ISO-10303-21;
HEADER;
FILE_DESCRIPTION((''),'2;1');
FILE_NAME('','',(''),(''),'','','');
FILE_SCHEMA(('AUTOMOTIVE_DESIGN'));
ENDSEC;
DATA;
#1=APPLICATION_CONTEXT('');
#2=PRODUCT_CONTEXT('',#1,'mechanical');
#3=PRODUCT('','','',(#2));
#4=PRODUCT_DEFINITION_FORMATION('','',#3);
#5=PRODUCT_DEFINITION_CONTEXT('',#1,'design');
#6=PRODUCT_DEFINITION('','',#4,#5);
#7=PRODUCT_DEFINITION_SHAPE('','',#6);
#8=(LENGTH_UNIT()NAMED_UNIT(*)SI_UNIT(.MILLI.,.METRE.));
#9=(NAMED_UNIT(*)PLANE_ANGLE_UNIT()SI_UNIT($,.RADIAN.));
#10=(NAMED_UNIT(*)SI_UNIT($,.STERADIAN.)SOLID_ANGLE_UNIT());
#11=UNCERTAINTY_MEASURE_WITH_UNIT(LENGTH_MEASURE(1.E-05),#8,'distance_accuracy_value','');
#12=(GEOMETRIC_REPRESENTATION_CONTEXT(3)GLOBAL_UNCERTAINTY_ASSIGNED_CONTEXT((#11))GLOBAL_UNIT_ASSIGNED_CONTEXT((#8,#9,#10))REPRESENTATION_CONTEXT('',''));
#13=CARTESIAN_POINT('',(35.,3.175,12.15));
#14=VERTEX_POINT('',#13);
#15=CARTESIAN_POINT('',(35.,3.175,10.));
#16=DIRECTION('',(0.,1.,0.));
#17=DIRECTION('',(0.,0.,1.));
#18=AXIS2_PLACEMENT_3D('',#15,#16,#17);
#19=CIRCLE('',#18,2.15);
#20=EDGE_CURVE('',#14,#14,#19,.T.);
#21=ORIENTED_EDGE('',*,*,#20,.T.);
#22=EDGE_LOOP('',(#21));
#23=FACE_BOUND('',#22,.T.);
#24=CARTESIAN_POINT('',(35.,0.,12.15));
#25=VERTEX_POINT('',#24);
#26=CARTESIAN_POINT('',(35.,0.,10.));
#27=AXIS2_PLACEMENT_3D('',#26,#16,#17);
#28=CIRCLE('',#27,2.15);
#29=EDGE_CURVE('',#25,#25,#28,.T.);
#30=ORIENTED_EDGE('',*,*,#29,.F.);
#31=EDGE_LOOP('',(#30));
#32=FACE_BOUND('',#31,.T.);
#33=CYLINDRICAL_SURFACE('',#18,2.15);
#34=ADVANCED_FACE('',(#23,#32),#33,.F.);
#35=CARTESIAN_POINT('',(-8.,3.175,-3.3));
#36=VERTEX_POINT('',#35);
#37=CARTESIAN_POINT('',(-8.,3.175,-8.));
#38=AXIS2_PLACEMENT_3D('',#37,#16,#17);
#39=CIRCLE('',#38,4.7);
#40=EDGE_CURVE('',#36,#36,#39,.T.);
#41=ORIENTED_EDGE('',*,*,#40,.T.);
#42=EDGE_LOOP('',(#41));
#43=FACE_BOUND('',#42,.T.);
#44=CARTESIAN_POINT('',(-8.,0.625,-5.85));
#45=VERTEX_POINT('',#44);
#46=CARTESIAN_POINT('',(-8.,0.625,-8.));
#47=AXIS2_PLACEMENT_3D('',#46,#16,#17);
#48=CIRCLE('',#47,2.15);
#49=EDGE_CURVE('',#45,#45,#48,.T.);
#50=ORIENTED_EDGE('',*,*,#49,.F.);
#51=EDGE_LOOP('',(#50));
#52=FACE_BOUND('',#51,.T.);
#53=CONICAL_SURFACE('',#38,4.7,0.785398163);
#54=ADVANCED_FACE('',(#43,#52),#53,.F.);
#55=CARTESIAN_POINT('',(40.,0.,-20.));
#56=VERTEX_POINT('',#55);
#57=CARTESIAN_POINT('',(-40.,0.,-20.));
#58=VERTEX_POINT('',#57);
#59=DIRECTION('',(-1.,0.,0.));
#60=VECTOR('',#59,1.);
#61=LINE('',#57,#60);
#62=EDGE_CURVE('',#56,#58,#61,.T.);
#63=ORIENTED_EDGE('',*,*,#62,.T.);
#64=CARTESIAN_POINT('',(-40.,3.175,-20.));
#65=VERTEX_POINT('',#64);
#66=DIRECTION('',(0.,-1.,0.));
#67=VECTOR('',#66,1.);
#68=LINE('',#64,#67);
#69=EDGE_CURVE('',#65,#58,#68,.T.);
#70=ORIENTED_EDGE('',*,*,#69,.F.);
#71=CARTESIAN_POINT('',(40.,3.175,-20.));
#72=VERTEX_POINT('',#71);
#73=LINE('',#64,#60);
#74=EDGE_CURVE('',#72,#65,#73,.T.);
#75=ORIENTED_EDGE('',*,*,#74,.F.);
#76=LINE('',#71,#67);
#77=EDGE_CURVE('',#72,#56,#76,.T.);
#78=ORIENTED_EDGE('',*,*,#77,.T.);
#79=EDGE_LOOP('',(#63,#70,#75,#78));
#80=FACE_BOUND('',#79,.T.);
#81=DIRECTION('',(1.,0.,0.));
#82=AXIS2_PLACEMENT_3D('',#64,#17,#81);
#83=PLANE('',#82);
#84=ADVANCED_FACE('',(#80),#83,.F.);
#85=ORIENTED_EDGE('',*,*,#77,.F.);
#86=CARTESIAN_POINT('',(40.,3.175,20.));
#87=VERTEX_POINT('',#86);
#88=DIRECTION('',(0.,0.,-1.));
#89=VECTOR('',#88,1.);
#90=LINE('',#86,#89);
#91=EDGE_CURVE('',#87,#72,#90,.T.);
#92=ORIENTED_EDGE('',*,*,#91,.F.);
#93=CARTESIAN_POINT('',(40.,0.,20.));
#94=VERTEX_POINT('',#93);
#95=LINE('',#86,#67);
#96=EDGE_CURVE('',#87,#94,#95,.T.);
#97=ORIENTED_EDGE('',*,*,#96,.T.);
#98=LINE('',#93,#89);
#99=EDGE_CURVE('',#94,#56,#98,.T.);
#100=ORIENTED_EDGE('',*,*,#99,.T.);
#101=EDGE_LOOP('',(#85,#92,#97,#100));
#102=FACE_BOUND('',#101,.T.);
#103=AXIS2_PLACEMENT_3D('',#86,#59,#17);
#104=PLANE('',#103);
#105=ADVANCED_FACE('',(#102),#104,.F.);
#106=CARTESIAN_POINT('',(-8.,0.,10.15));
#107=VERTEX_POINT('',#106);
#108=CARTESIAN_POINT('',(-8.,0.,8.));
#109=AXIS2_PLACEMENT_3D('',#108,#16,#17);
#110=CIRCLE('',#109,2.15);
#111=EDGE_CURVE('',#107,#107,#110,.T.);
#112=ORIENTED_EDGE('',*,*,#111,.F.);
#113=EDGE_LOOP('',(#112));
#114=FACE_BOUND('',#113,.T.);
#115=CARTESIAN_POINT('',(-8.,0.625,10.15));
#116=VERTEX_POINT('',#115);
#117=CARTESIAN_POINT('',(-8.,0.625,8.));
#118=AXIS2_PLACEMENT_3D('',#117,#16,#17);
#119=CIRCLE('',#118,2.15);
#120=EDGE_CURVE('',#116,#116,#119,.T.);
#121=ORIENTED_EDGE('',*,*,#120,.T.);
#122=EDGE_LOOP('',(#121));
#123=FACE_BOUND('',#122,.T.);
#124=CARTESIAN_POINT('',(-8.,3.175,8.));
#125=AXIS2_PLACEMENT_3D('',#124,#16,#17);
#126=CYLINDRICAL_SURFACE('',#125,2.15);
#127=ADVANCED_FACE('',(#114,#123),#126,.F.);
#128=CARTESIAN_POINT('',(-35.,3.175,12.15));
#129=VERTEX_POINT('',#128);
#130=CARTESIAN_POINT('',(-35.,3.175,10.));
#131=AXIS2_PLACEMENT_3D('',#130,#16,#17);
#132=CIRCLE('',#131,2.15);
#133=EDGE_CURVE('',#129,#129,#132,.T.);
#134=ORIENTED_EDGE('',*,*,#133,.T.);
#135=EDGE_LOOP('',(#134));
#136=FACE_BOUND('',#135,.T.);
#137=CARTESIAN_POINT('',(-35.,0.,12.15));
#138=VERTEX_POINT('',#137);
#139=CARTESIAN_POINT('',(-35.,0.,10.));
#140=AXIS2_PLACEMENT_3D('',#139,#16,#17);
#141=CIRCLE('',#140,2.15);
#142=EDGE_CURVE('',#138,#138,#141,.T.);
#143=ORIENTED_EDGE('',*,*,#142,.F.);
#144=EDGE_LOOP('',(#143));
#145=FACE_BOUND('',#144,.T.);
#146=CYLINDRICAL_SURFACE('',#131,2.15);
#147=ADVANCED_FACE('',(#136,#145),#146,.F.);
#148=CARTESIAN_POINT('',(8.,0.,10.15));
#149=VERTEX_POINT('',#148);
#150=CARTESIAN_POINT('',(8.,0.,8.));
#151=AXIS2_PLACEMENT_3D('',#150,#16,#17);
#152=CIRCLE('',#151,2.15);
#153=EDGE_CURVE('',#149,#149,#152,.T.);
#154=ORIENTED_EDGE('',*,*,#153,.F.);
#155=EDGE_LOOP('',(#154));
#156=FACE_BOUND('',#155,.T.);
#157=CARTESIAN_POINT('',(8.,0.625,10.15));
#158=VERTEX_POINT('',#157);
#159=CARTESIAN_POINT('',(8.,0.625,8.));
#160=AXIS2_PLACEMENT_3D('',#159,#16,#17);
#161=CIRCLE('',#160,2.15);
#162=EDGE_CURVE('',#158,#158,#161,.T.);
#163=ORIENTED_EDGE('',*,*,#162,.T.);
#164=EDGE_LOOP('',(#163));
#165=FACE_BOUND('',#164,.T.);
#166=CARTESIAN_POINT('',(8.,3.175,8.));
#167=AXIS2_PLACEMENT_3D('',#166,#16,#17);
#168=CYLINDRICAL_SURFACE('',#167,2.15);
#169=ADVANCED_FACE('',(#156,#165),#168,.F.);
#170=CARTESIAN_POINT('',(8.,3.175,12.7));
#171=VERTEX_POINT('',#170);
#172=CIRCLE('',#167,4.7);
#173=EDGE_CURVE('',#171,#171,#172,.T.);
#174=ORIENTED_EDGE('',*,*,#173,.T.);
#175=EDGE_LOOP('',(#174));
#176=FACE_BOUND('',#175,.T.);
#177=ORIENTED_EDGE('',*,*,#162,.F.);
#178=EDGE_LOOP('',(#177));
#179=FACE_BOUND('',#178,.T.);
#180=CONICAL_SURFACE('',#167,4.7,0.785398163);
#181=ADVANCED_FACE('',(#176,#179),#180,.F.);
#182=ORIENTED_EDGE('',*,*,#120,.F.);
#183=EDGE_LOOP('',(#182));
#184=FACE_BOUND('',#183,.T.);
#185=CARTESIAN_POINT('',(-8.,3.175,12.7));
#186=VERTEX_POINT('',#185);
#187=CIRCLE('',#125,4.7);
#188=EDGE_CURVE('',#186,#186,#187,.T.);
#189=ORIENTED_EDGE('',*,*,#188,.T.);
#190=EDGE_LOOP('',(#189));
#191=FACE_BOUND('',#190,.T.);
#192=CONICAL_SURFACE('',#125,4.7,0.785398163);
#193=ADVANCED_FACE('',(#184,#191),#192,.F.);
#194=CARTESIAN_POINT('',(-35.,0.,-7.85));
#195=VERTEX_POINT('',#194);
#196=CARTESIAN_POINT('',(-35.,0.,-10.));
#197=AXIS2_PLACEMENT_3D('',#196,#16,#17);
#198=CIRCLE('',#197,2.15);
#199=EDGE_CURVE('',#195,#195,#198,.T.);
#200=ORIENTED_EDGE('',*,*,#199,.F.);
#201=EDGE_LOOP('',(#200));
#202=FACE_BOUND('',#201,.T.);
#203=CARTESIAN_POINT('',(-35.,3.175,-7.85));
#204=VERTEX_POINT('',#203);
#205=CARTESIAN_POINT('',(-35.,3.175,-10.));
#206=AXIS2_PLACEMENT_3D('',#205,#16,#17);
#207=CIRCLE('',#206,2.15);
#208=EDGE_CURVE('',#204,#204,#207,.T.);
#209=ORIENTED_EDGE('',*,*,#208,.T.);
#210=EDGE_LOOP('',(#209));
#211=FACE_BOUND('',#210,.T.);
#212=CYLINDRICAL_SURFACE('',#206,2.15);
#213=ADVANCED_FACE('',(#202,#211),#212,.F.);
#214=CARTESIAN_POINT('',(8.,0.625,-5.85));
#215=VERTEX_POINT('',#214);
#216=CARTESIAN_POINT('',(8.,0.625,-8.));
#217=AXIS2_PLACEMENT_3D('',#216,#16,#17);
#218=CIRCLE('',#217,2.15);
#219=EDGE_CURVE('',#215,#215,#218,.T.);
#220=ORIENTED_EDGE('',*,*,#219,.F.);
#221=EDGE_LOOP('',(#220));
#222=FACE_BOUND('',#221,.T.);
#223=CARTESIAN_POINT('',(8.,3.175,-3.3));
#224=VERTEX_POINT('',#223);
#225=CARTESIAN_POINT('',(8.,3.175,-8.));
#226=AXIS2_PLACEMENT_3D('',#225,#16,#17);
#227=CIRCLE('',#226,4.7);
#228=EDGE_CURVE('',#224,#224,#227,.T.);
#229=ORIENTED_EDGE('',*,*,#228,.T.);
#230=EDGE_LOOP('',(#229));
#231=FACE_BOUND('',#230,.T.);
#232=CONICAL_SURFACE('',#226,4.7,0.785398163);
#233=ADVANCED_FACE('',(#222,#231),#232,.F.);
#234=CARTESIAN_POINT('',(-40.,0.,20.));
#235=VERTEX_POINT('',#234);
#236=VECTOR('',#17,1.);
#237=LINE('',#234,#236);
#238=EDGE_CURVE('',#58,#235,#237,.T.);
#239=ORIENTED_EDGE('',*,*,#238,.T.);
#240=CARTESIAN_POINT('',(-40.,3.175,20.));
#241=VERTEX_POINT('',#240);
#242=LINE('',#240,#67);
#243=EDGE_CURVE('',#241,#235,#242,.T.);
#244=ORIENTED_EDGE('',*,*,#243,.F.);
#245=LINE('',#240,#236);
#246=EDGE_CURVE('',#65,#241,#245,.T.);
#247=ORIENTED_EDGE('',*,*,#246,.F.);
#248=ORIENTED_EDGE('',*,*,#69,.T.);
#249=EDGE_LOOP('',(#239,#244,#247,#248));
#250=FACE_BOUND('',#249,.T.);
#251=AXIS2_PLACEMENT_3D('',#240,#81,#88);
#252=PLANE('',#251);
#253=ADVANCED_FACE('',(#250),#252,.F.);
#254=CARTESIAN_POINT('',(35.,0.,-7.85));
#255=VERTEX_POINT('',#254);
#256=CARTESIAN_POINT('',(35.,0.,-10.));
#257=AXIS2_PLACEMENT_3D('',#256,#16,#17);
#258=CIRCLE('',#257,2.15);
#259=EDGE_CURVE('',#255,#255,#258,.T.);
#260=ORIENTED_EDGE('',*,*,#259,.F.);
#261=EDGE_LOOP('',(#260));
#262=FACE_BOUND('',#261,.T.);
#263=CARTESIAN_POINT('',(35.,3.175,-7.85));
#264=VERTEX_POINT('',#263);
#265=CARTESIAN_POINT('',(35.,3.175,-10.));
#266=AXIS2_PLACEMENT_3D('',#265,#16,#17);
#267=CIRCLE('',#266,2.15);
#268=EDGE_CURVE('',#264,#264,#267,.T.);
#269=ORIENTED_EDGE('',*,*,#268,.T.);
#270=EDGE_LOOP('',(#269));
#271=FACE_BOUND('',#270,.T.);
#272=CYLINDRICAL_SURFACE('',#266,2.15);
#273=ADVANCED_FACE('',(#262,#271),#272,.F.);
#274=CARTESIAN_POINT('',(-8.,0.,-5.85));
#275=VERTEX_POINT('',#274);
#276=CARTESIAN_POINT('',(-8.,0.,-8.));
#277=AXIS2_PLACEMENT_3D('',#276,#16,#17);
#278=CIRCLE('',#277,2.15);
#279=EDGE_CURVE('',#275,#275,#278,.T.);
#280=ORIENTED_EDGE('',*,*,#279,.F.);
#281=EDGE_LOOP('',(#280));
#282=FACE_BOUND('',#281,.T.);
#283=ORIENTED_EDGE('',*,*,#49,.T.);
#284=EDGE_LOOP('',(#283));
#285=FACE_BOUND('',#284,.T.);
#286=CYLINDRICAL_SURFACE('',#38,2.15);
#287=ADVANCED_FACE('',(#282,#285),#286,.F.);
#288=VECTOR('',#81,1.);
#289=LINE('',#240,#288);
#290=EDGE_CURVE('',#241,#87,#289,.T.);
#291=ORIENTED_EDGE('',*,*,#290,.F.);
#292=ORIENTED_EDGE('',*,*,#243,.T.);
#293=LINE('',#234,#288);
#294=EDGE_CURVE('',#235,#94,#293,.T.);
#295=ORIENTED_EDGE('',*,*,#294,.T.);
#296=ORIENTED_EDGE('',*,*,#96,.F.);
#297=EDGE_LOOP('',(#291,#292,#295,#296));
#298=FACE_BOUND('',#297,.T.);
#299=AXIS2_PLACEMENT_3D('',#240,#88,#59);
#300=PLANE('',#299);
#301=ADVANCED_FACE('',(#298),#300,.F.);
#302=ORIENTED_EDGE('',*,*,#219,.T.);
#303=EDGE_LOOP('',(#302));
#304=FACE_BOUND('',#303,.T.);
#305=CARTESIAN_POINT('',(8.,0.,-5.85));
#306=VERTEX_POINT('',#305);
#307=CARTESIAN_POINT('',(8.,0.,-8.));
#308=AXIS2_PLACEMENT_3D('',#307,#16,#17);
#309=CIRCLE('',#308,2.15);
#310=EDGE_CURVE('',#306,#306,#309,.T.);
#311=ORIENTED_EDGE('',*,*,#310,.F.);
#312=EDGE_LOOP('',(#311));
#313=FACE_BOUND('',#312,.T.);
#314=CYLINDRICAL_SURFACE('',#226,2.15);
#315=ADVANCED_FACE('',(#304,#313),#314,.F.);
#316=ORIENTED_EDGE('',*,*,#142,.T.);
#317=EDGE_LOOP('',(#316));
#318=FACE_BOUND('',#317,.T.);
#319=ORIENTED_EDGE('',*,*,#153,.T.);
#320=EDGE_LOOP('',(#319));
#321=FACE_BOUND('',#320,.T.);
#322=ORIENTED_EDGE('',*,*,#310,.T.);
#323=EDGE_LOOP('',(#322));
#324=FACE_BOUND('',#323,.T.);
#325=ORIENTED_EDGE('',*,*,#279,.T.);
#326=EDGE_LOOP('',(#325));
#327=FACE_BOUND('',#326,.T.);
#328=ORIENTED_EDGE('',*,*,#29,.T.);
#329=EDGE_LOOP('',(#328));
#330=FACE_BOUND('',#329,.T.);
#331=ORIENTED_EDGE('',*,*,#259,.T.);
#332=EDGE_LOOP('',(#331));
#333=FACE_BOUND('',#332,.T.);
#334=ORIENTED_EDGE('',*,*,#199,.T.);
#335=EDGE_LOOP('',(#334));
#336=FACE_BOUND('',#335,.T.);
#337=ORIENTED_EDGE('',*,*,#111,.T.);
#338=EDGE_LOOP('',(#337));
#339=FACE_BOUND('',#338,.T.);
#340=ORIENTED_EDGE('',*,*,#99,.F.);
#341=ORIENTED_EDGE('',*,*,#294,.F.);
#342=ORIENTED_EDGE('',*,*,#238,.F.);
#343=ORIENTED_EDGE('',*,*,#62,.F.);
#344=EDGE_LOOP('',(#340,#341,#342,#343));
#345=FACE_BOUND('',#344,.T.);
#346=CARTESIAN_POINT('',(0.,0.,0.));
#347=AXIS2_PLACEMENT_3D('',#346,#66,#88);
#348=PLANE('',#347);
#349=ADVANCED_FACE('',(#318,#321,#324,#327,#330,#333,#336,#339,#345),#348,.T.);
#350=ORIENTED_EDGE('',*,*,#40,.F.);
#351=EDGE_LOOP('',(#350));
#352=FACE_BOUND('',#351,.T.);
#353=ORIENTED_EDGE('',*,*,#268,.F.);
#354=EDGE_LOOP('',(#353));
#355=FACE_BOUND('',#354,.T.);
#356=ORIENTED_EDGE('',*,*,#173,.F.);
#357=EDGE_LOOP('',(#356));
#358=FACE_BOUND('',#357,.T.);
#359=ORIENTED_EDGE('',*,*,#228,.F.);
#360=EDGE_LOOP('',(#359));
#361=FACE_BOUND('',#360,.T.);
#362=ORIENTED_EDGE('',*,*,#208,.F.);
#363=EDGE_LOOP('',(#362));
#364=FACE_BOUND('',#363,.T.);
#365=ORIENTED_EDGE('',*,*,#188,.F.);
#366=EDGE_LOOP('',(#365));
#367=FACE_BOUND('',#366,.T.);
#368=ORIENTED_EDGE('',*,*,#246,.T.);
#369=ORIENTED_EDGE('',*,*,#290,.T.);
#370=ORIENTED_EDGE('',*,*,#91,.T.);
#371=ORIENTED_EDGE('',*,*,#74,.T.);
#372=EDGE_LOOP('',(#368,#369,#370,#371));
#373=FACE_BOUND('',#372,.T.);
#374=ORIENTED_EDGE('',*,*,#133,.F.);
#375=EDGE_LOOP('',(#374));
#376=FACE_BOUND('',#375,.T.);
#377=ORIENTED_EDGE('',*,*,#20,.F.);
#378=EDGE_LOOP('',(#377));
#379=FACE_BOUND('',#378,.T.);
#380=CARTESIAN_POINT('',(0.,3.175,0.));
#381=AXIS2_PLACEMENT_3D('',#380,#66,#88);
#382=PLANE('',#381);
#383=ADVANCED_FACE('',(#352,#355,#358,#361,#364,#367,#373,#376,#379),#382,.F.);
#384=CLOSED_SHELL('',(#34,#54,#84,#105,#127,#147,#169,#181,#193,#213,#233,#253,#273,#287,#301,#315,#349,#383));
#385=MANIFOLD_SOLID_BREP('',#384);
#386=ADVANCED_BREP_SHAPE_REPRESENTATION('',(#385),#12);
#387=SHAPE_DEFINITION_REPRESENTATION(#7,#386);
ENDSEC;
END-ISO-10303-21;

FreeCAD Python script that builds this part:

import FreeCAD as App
import Part
import Sketcher
Q = App.Units.Quantity


def add_polygon(sketch, points):
    """Adds a closed chain of lines whose ends are joined by coincident constraints."""
    first, n = sketch.GeometryCount, len(points)
    for a, b in zip(points, points[1:] + points[:1]):
        sketch.addGeometry(Part.LineSegment(App.Vector(*a, 0), App.Vector(*b, 0)), False)
    for i in range(n):
        sketch.addConstraint(Sketcher.Constraint("Coincident", first + i, 2, first + (i + 1) % n, 1))

doc = App.newDocument("Part")
params = doc.addObject("Spreadsheet::Sheet", "Params")
for row, (alias, value) in enumerate([
    ("sketch1_width", "80 mm"),
    ("sketch1_height", "40 mm"),
    ("pad1_length", "3.175 mm"),
    ("sketch2_diameter", "4.3 mm"),
    ("hole_diameter", "4.3 mm"),
    ("sketch3_height", "4.7 mm"),
    ("sketch3_height2", "2.15 mm"),
    ("groove_angle", "360 deg"),
    ("linearpattern_pitch", "16 mm"),
    ("linearpattern2_pitch", "22.627417 mm"),
    ("linearpattern3_pitch", "16 mm"),
], start=1):
    params.set(f"A{row}", alias)
    params.set(f"B{row}", "=" + value)
    params.setAlias(f"B{row}", alias)

body = doc.addObject("PartDesign::Body", "Body")

# Sketch on XZ plane
sketch1 = body.newObject("Sketcher::SketchObject", "Sketch")
sketch1.AttachmentSupport = (doc.getObject("XZ_Plane"), [""])
sketch1.MapMode = "FlatFace"
add_polygon(sketch1, [(-40, -20), (-40, 20), (40, 20), (40, -20)])  # lines 0-3
sketch1.addConstraint([
    Sketcher.Constraint("Vertical", 0),
    Sketcher.Constraint("Horizontal", 1),
    Sketcher.Constraint("Vertical", 2),
    Sketcher.Constraint("Horizontal", 3),
    Sketcher.Constraint("Symmetric", 0, 2, 2, 2, -1, 1),
    Sketcher.Constraint("DistanceX", 1, 1, 1, 2, Q("80 mm")),
    Sketcher.Constraint("DistanceY", 0, 1, 0, 2, Q("40 mm")),
])
sketch1.setExpression("Constraints[9]", "Params.sketch1_width")
sketch1.setExpression("Constraints[10]", "Params.sketch1_height")
pad1 = body.newObject("PartDesign::Pad", "Pad")
pad1.Profile = sketch1
pad1.setExpression("Length", "Params.pad1_length")
pad1.Reversed = True

# Sketch on XZ plane
sketch2 = body.newObject("Sketcher::SketchObject", "Sketch001")
sketch2.AttachmentSupport = (doc.getObject("XZ_Plane"), [""])
sketch2.MapMode = "FlatFace"
sketch2.AttachmentOffset = App.Placement(App.Vector(0, 0, -3.175), App.Rotation())
sketch2.addGeometry([
    Part.Circle(App.Vector(-35, -10, 0), App.Vector(0, 0, 1), 2.1),
    Part.Circle(App.Vector(35, -10, 0), App.Vector(0, 0, 1), 2.1),
    Part.Circle(App.Vector(35, 10, 0), App.Vector(0, 0, 1), 2.1),
    Part.Circle(App.Vector(-35, 10, 0), App.Vector(0, 0, 1), 2.1),
], False)
sketch2.addConstraint([
    Sketcher.Constraint("Equal", 0, 1),
    Sketcher.Constraint("Equal", 1, 2),
    Sketcher.Constraint("Equal", 2, 3),
    Sketcher.Constraint("Symmetric", 0, 3, 2, 3, -1, 1),
    Sketcher.Constraint("Symmetric", 1, 3, 3, 3, -1, 1),
    Sketcher.Constraint("Symmetric", 0, 3, 1, 3, -2),
    Sketcher.Constraint("Diameter", 0, Q("4.3 mm")),
    Sketcher.Constraint("DistanceX", 0, 3, -1, 1, Q("35 mm")),
    Sketcher.Constraint("DistanceY", 0, 3, -1, 1, Q("10 mm")),
])
sketch2.setExpression("Constraints[6]", "Params.sketch2_diameter")
doc.recompute()
hole = body.newObject("PartDesign::Hole", "Hole")
hole.Profile = sketch2
hole.ThreadType = "None"
hole.setExpression("Diameter", "Params.hole_diameter")
hole.DepthType = "ThroughAll"
hole.Reversed = True

# Sketch on YZ plane
sketch3 = body.newObject("Sketcher::SketchObject", "Sketch002")
sketch3.AttachmentSupport = (doc.getObject("YZ_Plane"), [""])
sketch3.MapMode = "FlatFace"
sketch3.AttachmentOffset = App.Placement(App.Vector(0, 0, -8), App.Rotation())
add_polygon(sketch3, [(0, -8), (3.2, -8), (3.2, -3.3), (0.6, -5.8), (0, -5.8)])  # lines 0-4
sketch3.addGeometry(Part.LineSegment(App.Vector(3.2, -8, 0), App.Vector(0, -8, 0)), True)  # axis
sketch3.addConstraint([
    Sketcher.Constraint("Horizontal", 0),
    Sketcher.Constraint("Vertical", 1),
    Sketcher.Constraint("Horizontal", 3),
    Sketcher.Constraint("Vertical", 4),
    Sketcher.Constraint("Horizontal", 5),
    Sketcher.Constraint("Coincident", 5, 1, 0, 2),
    Sketcher.Constraint("PointOnObject", 3, 2, -2),
    Sketcher.Constraint("PointOnObject", 5, 2, -2),
    Sketcher.Constraint("Angle", 2, Q("-135 deg")),
    Sketcher.Constraint("DistanceY", 1, 1, 1, 2, Q("4.7 mm")),
    Sketcher.Constraint("DistanceY", 0, 2, -1, 1, Q("8 mm")),
    Sketcher.Constraint("DistanceY", 4, 2, 4, 1, Q("2.15 mm")),
    Sketcher.Constraint("DistanceX", 0, 1, 0, 2, Q("3.175 mm")),
])
sketch3.setExpression("Constraints[14]", "Params.sketch3_height")
sketch3.setExpression("Constraints[16]", "Params.sketch3_height2")
groove = body.newObject("PartDesign::Groove", "Groove")
groove.Profile = sketch3
groove.ReferenceAxis = (sketch3, ["Axis0"])
groove.setExpression("Angle", "Params.groove_angle")
doc.recompute()

linearpattern = body.newObject("PartDesign::LinearPattern", "LinearPattern")
linearpattern.Originals = [groove]
linearpattern.Direction = (doc.getObject("X_Axis"), [""])
linearpattern.Mode = "offset"
linearpattern.setExpression("Offset", "Params.linearpattern_pitch")
linearpattern.Occurrences = 2
body.Tip = linearpattern
doc.recompute()

datumline = body.newObject("PartDesign::Line", "DatumLine")
datumline.Placement = App.Placement(App.Vector(0, 0, 0), App.Rotation(App.Vector(0, 0, 1), App.Vector(0.707106781, 0, 0.707106781)))
linearpattern2 = body.newObject("PartDesign::LinearPattern", "LinearPattern001")
linearpattern2.Originals = [groove]
linearpattern2.Direction = (datumline, [""])
linearpattern2.Mode = "offset"
linearpattern2.setExpression("Offset", "Params.linearpattern2_pitch")
linearpattern2.Occurrences = 2
body.Tip = linearpattern2
doc.recompute()

linearpattern3 = body.newObject("PartDesign::LinearPattern", "LinearPattern002")
linearpattern3.Originals = [groove]
linearpattern3.Direction = (doc.getObject("Z_Axis"), [""])
linearpattern3.Mode = "offset"
linearpattern3.setExpression("Offset", "Params.linearpattern3_pitch")
linearpattern3.Occurrences = 2
body.Tip = linearpattern3

doc.recompute()
